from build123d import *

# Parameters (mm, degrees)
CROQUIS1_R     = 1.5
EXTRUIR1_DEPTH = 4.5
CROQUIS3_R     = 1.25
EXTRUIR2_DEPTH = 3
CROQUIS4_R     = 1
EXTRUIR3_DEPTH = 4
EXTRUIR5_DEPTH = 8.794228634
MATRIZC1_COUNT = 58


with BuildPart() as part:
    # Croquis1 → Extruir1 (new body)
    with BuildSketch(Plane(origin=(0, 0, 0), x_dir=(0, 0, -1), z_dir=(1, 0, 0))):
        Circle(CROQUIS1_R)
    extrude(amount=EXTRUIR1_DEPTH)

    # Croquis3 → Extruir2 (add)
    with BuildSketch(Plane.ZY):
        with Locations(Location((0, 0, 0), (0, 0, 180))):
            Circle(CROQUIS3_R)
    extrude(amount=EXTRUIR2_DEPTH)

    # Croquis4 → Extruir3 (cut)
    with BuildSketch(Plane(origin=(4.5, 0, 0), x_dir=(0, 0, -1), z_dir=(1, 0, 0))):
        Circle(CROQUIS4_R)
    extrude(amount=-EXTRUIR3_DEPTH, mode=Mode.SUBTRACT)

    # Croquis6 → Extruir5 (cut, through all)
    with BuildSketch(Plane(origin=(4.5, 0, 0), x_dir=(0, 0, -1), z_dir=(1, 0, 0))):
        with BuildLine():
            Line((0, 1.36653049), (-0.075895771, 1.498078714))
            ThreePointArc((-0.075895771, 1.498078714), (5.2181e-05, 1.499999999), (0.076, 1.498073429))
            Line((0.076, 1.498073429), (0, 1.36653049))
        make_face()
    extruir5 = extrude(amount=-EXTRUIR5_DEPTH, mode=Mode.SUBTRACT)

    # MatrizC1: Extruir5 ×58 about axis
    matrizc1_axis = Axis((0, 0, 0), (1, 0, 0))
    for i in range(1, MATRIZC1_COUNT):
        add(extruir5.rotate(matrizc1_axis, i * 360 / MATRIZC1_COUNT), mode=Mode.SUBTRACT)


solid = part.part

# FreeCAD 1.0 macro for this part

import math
import FreeCAD as App
import Part
import Sketcher

V = App.Vector
Q = App.Units.Quantity

doc = App.newDocument("Part")
body = doc.addObject("PartDesign::Body", "Body")

# Sketch on YZ plane
sketch1 = body.newObject("Sketcher::SketchObject", "Sketch")
sketch1.AttachmentSupport = (doc.getObject("YZ_Plane"), [""])
sketch1.MapMode = "FlatFace"
sketch1.addGeometry(Part.Circle(V(0, 0, 0), V(0, 0, 1), 1.5), False)
sketch1.addConstraint([
    Sketcher.Constraint("Coincident", 0, 3, -1, 1),
    Sketcher.Constraint("Diameter", 0, Q("3 mm")),
])
pad1 = body.newObject("PartDesign::Pad", "Pad")
pad1.Profile = sketch1
pad1.Length = 4.5

# Sketch on YZ plane
sketch2 = body.newObject("Sketcher::SketchObject", "Sketch001")
sketch2.AttachmentSupport = (doc.getObject("YZ_Plane"), [""])
sketch2.MapMode = "FlatFace"
sketch2.addGeometry(Part.Circle(V(0, 0, 0), V(0, 0, 1), 1.2), False)
sketch2.addConstraint([
    Sketcher.Constraint("Coincident", 0, 3, -1, 1),
    Sketcher.Constraint("Diameter", 0, Q("2.5 mm")),
])
pad2 = body.newObject("PartDesign::Pad", "Pad001")
pad2.Profile = sketch2
pad2.Length = 3
pad2.Reversed = True

# Sketch on YZ plane
sketch3 = body.newObject("Sketcher::SketchObject", "Sketch002")
sketch3.AttachmentSupport = (doc.getObject("YZ_Plane"), [""])
sketch3.MapMode = "FlatFace"
sketch3.AttachmentOffset = App.Placement(V(0, 0, 4.5), App.Rotation())
sketch3.addGeometry(Part.Circle(V(0, 0, 0), V(0, 0, 1), 1), False)
sketch3.addConstraint([
    Sketcher.Constraint("Coincident", 0, 3, -1, 1),
    Sketcher.Constraint("Diameter", 0, Q("2 mm")),
])
pocket1 = body.newObject("PartDesign::Pocket", "Pocket")
pocket1.Profile = sketch3
pocket1.Length = 4

# Sketch on YZ plane
sketch4 = body.newObject("Sketcher::SketchObject", "Sketch003")
sketch4.AttachmentSupport = (doc.getObject("YZ_Plane"), [""])
sketch4.MapMode = "FlatFace"
sketch4.AttachmentOffset = App.Placement(V(0, 0, 4.5), App.Rotation())
sketch4.addGeometry([
    Part.LineSegment(V(1.5, 0.08, 0), V(1.37, 0, 0)),
    Part.LineSegment(V(1.37, 0, 0), V(1.5, -0.08, 0)),
    Part.ArcOfCircle(Part.Circle(V(0, 0, 0), V(0, 0, 1), 1.5), math.radians(-2.9), math.radians(2.9)),
], False)
sketch4.addConstraint([
    Sketcher.Constraint("Coincident", 0, 2, 1, 1),
    Sketcher.Constraint("Coincident", 1, 2, 2, 1),
    Sketcher.Constraint("Coincident", 2, 2, 0, 1),
    Sketcher.Constraint("Coincident", 2, 3, -1, 1),
    Sketcher.Constraint("PointOnObject", 0, 2, -1),
    Sketcher.Constraint("Radius", 2, Q("1.5 mm")),
    Sketcher.Constraint("DistanceY", 1, 2, -1, 1, Q("0.076 mm")),
    Sketcher.Constraint("Distance", 0, Q("0.151872 mm")),
    Sketcher.Constraint("Distance", 1, Q("0.15192 mm")),
])
pocket2 = body.newObject("PartDesign::Pocket", "Pocket001")
pocket2.Profile = sketch4
pocket2.Type = "ThroughAll"
doc.recompute()

polarpattern = body.newObject("PartDesign::PolarPattern", "PolarPattern")
polarpattern.Originals = [pocket2]
polarpattern.Axis = (doc.getObject("X_Axis"), [""])
polarpattern.Angle = 360
polarpattern.Occurrences = 58
body.Tip = polarpattern

doc.recompute()
